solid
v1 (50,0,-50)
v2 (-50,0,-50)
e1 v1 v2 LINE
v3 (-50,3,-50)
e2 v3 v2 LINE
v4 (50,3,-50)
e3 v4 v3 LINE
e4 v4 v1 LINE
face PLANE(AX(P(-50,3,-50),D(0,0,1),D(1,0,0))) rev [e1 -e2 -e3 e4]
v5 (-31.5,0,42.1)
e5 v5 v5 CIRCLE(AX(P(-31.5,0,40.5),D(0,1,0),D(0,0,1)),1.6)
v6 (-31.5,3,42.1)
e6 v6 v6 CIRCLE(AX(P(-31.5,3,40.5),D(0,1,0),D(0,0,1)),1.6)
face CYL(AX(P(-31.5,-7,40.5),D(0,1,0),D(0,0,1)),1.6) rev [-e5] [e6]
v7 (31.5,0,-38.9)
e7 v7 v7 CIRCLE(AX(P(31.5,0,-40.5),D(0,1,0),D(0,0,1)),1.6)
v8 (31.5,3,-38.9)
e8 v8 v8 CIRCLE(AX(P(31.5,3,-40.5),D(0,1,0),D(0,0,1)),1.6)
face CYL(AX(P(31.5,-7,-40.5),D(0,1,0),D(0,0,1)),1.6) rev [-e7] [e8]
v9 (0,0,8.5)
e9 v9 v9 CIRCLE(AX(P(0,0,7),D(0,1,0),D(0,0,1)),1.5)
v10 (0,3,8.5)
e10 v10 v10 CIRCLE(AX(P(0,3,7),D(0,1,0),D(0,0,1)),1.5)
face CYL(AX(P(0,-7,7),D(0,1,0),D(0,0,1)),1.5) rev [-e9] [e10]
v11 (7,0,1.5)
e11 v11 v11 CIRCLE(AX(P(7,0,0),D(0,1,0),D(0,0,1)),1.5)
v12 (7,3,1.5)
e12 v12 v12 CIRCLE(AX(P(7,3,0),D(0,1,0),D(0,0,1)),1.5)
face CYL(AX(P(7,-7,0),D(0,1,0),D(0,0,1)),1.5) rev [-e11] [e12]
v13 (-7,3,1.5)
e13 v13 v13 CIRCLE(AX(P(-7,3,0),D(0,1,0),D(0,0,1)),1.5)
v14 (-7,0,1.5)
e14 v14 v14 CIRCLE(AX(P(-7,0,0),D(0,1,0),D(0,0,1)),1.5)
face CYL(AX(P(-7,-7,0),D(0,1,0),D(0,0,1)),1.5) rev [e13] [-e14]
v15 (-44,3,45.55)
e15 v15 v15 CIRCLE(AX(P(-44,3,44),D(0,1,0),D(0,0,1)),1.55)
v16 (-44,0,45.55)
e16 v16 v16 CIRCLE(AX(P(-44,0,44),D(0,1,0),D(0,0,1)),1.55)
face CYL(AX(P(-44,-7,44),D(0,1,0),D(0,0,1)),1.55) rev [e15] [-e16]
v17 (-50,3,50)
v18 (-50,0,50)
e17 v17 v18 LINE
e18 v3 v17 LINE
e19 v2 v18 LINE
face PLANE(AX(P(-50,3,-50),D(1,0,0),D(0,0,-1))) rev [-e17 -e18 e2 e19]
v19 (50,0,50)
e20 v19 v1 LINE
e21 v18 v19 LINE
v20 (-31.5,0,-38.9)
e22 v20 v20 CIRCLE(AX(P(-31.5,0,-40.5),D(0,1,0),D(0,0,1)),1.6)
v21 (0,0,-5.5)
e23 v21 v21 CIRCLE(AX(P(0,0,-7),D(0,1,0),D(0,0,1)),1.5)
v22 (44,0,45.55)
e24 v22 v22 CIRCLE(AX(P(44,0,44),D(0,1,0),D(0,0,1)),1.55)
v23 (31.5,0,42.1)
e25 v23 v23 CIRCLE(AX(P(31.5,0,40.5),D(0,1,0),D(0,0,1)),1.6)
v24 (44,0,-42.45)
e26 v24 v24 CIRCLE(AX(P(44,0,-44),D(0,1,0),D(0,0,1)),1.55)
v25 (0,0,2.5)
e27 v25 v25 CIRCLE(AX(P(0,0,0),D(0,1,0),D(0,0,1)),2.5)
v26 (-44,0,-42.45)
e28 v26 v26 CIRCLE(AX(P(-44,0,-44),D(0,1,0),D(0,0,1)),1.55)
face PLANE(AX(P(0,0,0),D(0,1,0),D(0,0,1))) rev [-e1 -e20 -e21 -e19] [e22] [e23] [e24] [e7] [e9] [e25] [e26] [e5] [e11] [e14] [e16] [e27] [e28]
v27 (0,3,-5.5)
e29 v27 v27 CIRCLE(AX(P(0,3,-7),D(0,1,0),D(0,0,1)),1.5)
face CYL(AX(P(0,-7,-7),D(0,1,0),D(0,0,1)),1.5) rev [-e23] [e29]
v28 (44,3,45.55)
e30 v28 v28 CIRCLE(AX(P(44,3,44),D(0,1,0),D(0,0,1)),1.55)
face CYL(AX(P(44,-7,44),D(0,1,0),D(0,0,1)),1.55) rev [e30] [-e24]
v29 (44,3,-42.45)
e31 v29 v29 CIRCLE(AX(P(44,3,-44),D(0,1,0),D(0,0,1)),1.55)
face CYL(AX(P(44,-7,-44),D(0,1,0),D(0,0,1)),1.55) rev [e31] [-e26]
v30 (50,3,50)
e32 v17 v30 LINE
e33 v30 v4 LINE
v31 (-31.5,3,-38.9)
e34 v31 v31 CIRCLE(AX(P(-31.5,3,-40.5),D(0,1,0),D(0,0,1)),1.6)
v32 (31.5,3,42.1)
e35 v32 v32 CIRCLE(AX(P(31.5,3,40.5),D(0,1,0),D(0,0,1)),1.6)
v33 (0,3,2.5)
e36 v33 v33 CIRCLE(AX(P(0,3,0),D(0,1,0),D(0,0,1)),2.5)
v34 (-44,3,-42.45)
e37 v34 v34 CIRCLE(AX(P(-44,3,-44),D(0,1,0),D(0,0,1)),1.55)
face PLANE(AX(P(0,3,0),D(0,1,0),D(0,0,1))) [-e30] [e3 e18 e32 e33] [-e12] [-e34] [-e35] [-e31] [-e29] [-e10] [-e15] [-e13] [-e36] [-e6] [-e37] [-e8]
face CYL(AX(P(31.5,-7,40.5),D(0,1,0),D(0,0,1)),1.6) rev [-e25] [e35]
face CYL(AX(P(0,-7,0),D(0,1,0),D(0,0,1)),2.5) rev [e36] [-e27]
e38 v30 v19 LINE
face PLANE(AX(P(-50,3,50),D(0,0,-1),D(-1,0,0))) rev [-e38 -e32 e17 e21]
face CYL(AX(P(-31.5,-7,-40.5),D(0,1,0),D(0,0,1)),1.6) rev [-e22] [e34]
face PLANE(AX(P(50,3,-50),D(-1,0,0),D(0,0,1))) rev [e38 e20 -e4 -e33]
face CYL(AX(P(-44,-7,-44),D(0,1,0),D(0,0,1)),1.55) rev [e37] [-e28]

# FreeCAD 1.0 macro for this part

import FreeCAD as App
import Part
import Sketcher

doc = App.newDocument("Part")
body = doc.addObject("PartDesign::Body", "Body")

# Sketch on XZ plane
sketch1 = body.newObject("Sketcher::SketchObject", "Sketch")
sketch1.AttachmentSupport = (doc.getObject("XZ_Plane"), [""])
sketch1.MapMode = "FlatFace"
sketch1.addGeometry([
    Part.LineSegment(App.Vector(-50, -50, 0), App.Vector(-50, 50, 0)),
    Part.LineSegment(App.Vector(-50, 50, 0), App.Vector(50, 50, 0)),
    Part.LineSegment(App.Vector(50, 50, 0), App.Vector(50, -50, 0)),
    Part.LineSegment(App.Vector(50, -50, 0), App.Vector(-50, -50, 0)),
], False)
sketch1.addConstraint([
    Sketcher.Constraint("Coincident", 0, 2, 1, 1),
    Sketcher.Constraint("Coincident", 1, 2, 2, 1),
    Sketcher.Constraint("Coincident", 2, 2, 3, 1),
    Sketcher.Constraint("Coincident", 3, 2, 0, 1),
    Sketcher.Constraint("Vertical", 0),
    Sketcher.Constraint("Horizontal", 1),
    Sketcher.Constraint("Vertical", 2),
    Sketcher.Constraint("Horizontal", 3),
    Sketcher.Constraint("Symmetric", 0, 2, 2, 2, -1, 1),
    Sketcher.Constraint("Equal", 3, 0),
    Sketcher.Constraint("DistanceX", 1, 1, 1, 2, 100.0),
])
pad1 = body.newObject("PartDesign::Pad", "Pad")
pad1.Profile = sketch1
pad1.Length = 3
pad1.Reversed = True

# Sketch on XZ plane
sketch2 = body.newObject("Sketcher::SketchObject", "Sketch001")
sketch2.AttachmentSupport = (doc.getObject("XZ_Plane"), [""])
sketch2.MapMode = "FlatFace"
sketch2.AttachmentOffset = App.Placement(App.Vector(0, 0, -3), App.Rotation())
sketch2.addGeometry([
    Part.Circle(App.Vector(-44, -44, 0), App.Vector(0, 0, 1), 1.55),
    Part.Circle(App.Vector(44, -44, 0), App.Vector(0, 0, 1), 1.55),
    Part.Circle(App.Vector(44, 44, 0), App.Vector(0, 0, 1), 1.55),
    Part.Circle(App.Vector(-44, 44, 0), App.Vector(0, 0, 1), 1.55),
], False)
sketch2.addConstraint([
    Sketcher.Constraint("Equal", 0, 1),
    Sketcher.Constraint("Equal", 1, 2),
    Sketcher.Constraint("Equal", 2, 3),
    Sketcher.Constraint("Symmetric", 0, 3, 2, 3, -1, 1),
    Sketcher.Constraint("Symmetric", 1, 3, 3, 3, -1, 1),
    Sketcher.Constraint("Symmetric", 0, 3, 1, 3, -2),
    Sketcher.Constraint("Diameter", 0, 3.1),
    Sketcher.Constraint("DistanceX", 0, 3, -1, 1, 44.0),
    Sketcher.Constraint("DistanceY", 0, 3, -1, 1, 44.0),
])
pocket1 = body.newObject("PartDesign::Pocket", "Pocket")
pocket1.Profile = sketch2
pocket1.Length = 10
pocket1.Reversed = True

# Sketch on XZ plane
sketch3 = body.newObject("Sketcher::SketchObject", "Sketch002")
sketch3.AttachmentSupport = (doc.getObject("XZ_Plane"), [""])
sketch3.MapMode = "FlatFace"
sketch3.AttachmentOffset = App.Placement(App.Vector(0, 0, -3), App.Rotation())
sketch3.addGeometry([
    Part.Circle(App.Vector(-31.5, -40.5, 0), App.Vector(0, 0, 1), 1.6),
    Part.Circle(App.Vector(31.5, -40.5, 0), App.Vector(0, 0, 1), 1.6),
    Part.Circle(App.Vector(-31.5, 40.5, 0), App.Vector(0, 0, 1), 1.6),
    Part.Circle(App.Vector(31.5, 40.5, 0), App.Vector(0, 0, 1), 1.6),
], False)
sketch3.addConstraint([
    Sketcher.Constraint("Equal", 0, 1),
    Sketcher.Constraint("Equal", 1, 2),
    Sketcher.Constraint("Equal", 2, 3),
    Sketcher.Constraint("Symmetric", 1, 3, 2, 3, -1, 1),
    Sketcher.Constraint("Symmetric", 0, 3, 3, 3, -1, 1),
    Sketcher.Constraint("Symmetric", 0, 3, 1, 3, -2),
    Sketcher.Constraint("Diameter", 0, 3.2),
    Sketcher.Constraint("DistanceX", 0, 3, 1, 3, 63.0),
    Sketcher.Constraint("DistanceY", 0, 3, 2, 3, 81.0),
])
pocket2 = body.newObject("PartDesign::Pocket", "Pocket001")
pocket2.Profile = sketch3
pocket2.Length = 10
pocket2.Reversed = True

# Sketch on XZ plane
sketch4 = body.newObject("Sketcher::SketchObject", "Sketch003")
sketch4.AttachmentSupport = (doc.getObject("XZ_Plane"), [""])
sketch4.MapMode = "FlatFace"
sketch4.AttachmentOffset = App.Placement(App.Vector(0, 0, -3), App.Rotation())
sketch4.addGeometry([
    Part.Circle(App.Vector(0, 0, 0), App.Vector(0, 0, 1), 2.5),  # 0
    Part.Circle(App.Vector(0, -7, 0), App.Vector(0, 0, 1), 1.5),  # 1
    Part.Circle(App.Vector(7, 0, 0), App.Vector(0, 0, 1), 1.5),  # 2
    Part.Circle(App.Vector(0, 7, 0), App.Vector(0, 0, 1), 1.5),  # 3
    Part.Circle(App.Vector(-7, 0, 0), App.Vector(0, 0, 1), 1.5),  # 4
], False)
sketch4.addConstraint([
    Sketcher.Constraint("Coincident", 0, 3, -1, 1),
    Sketcher.Constraint("Equal", 1, 2),
    Sketcher.Constraint("Equal", 2, 3),
    Sketcher.Constraint("Equal", 3, 4),
    Sketcher.Constraint("Symmetric", 1, 3, 3, 3, -1, 1),
    Sketcher.Constraint("Symmetric", 2, 3, 4, 3, -1, 1),
    Sketcher.Constraint("PointOnObject", 1, 3, -2),
    Sketcher.Constraint("PointOnObject", 2, 3, -1),
    Sketcher.Constraint("Diameter", 0, 5.0),
    Sketcher.Constraint("Diameter", 1, 3.0),
    Sketcher.Constraint("DistanceY", 1, 3, -1, 1, 7.0),
    Sketcher.Constraint("DistanceX", -1, 1, 2, 3, 7.0),
])
pocket3 = body.newObject("PartDesign::Pocket", "Pocket002")
pocket3.Profile = sketch4
pocket3.Length = 10
pocket3.Reversed = True

doc.recompute()
